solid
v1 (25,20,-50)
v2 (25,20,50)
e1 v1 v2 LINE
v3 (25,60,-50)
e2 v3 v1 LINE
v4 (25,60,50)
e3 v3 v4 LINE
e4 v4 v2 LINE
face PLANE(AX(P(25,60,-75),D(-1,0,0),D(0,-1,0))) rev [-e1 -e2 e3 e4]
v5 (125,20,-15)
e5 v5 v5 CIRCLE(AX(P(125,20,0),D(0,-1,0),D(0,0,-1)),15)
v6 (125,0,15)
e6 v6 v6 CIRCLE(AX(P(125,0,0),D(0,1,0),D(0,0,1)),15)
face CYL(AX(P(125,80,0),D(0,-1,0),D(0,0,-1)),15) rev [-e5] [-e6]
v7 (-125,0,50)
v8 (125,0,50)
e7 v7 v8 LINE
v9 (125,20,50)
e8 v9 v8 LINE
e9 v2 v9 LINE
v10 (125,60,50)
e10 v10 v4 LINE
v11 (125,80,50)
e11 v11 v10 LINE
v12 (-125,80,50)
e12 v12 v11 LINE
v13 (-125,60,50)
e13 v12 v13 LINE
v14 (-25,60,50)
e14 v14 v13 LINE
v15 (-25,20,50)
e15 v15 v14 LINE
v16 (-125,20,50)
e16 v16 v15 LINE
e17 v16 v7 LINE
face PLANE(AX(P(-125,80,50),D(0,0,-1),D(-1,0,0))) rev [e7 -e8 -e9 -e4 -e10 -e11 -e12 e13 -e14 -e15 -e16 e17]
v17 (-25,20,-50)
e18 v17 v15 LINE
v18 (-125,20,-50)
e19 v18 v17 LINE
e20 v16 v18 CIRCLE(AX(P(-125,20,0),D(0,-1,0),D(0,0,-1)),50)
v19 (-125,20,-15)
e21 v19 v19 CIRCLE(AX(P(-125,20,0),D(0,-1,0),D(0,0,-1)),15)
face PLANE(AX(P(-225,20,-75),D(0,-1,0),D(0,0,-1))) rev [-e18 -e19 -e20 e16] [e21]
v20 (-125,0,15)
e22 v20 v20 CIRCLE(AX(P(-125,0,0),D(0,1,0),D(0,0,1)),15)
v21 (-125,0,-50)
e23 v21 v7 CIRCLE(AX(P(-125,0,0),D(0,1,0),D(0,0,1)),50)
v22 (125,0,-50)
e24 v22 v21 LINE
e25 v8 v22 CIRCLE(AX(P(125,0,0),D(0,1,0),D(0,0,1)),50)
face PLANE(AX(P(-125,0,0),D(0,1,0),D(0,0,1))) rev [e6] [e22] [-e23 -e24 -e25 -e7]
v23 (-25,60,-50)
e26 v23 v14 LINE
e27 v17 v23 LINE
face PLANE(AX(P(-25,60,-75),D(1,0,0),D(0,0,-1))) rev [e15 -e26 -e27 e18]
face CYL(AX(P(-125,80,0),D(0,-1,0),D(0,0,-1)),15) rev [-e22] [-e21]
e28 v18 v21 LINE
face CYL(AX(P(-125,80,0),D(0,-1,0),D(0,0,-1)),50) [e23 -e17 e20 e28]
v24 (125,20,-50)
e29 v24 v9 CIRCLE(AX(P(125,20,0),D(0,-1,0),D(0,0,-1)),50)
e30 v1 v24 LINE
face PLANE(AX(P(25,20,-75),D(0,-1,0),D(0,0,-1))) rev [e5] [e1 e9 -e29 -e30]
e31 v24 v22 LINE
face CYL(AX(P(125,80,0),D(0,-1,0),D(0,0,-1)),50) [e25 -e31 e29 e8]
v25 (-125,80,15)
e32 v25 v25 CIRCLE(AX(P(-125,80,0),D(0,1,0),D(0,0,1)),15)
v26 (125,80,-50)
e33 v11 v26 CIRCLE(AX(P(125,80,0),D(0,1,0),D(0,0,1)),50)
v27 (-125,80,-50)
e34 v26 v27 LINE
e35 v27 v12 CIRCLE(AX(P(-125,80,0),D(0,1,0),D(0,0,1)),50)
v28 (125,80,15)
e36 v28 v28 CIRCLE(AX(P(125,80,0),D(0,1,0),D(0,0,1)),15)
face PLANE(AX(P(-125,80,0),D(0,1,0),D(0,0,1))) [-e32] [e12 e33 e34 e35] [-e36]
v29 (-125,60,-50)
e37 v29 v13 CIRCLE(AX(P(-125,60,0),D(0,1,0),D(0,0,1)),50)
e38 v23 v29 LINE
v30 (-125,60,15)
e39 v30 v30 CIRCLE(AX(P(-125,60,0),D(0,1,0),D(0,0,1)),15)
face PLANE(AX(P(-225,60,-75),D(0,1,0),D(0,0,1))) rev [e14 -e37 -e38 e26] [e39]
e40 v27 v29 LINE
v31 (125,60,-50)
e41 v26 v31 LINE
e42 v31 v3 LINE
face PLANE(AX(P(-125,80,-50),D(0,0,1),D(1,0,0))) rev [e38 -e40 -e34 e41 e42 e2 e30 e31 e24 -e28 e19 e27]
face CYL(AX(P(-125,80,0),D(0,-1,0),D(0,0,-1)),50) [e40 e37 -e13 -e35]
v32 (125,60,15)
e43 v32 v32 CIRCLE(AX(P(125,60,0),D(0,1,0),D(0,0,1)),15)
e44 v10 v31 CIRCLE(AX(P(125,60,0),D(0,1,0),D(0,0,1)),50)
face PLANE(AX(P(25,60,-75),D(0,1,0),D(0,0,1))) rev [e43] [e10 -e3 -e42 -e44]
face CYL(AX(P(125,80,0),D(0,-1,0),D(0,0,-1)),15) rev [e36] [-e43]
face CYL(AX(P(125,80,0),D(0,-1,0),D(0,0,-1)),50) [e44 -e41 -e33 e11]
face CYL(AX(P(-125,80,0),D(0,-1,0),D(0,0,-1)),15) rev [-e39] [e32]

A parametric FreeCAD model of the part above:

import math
import FreeCAD as App
import Part
import Sketcher

V = App.Vector

doc = App.newDocument("Part")
params = doc.addObject("Spreadsheet::Sheet", "Params")
for row, (alias, value) in enumerate([
    ("sketch1_diameter", "30 mm"),
    ("sketch1_radius", "50 mm"),
    ("sketch1_width", "250 mm"),
    ("pad1_length", "80 mm"),
    ("sketch2_width", "200 mm"),
    ("sketch2_height", "40 mm"),
    ("pocket1_length", "125 mm"),
], start=1):
    params.set(f"A{row}", alias)
    params.set(f"B{row}", "=" + value)
    params.setAlias(f"B{row}", alias)

body = doc.addObject("PartDesign::Body", "Body")

sketch1 = body.newObject("Sketcher::SketchObject", "Sketch")
sketch1.AttachmentSupport = (doc.getObject("XZ_Plane"), [""])
sketch1.MapMode = "FlatFace"
sketch1.addGeometry([
    Part.LineSegment(V(125, -50, 0), V(-125, -50, 0)),
    Part.ArcOfCircle(Part.Circle(V(-125, 0, 0), V(0, 0, 1), 50), math.radians(90), math.radians(270)),
    Part.LineSegment(V(-125, 50, 0), V(125, 50, 0)),
    Part.ArcOfCircle(Part.Circle(V(125, 0, 0), V(0, 0, 1), 50), math.radians(-90), math.radians(90)),
    Part.Circle(V(125, 0, 0), V(0, 0, 1), 15),
    Part.Circle(V(-125, 0, 0), V(0, 0, 1), 15),
], False)
sketch1.addConstraint([
    Sketcher.Constraint("Tangent", 0, 2, 1, 2),
    Sketcher.Constraint("Tangent", 1, 1, 2, 1),
    Sketcher.Constraint("Tangent", 2, 2, 3, 2),
    Sketcher.Constraint("Tangent", 3, 1, 0, 1),
    Sketcher.Constraint("Horizontal", 0),
    Sketcher.Constraint("Horizontal", 2),
    Sketcher.Constraint("Coincident", 4, 3, 3, 3),
    Sketcher.Constraint("Coincident", 5, 3, 1, 3),
    Sketcher.Constraint("Equal", 4, 5),
    Sketcher.Constraint("Symmetric", 1, 3, 3, 3, -1, 1),
    Sketcher.Constraint("Diameter", 4, 30.0),
    Sketcher.Constraint("Radius", 1, 50.0),
    Sketcher.Constraint("DistanceX", 0, 2, 0, 1, 250.0),
])
sketch1.setExpression("Constraints[10]", "Params.sketch1_diameter")
sketch1.setExpression("Constraints[11]", "Params.sketch1_radius")
sketch1.setExpression("Constraints[12]", "Params.sketch1_width")
pad1 = body.newObject("PartDesign::Pad", "Pad")
pad1.Profile = sketch1
pad1.setExpression("Length", "Params.pad1_length")
pad1.Reversed = True

sketch2 = body.newObject("Sketcher::SketchObject", "Sketch001")
sketch2.AttachmentSupport = (doc.getObject("XY_Plane"), [""])
sketch2.MapMode = "FlatFace"
sketch2.AttachmentOffset = App.Placement(V(0, 0, 50), App.Rotation())
sketch2.addGeometry([
    Part.LineSegment(V(-225, 60, 0), V(-225, 20, 0)),
    Part.LineSegment(V(-225, 20, 0), V(-25, 20, 0)),
    Part.LineSegment(V(-25, 20, 0), V(-25, 60, 0)),
    Part.LineSegment(V(-25, 60, 0), V(-225, 60, 0)),
    Part.LineSegment(V(25, 60, 0), V(25, 20, 0)),
    Part.LineSegment(V(25, 20, 0), V(225, 20, 0)),
    Part.LineSegment(V(225, 20, 0), V(225, 60, 0)),
    Part.LineSegment(V(225, 60, 0), V(25, 60, 0)),
], False)
sketch2.addConstraint([
    Sketcher.Constraint("Coincident", 0, 2, 1, 1),
    Sketcher.Constraint("Coincident", 1, 2, 2, 1),
    Sketcher.Constraint("Coincident", 2, 2, 3, 1),
    Sketcher.Constraint("Coincident", 3, 2, 0, 1),
    Sketcher.Constraint("Coincident", 4, 2, 5, 1),
    Sketcher.Constraint("Coincident", 5, 2, 6, 1),
    Sketcher.Constraint("Coincident", 6, 2, 7, 1),
    Sketcher.Constraint("Coincident", 7, 2, 4, 1),
    Sketcher.Constraint("Vertical", 0),
    Sketcher.Constraint("Horizontal", 1),
    Sketcher.Constraint("Vertical", 2),
    Sketcher.Constraint("Horizontal", 3),
    Sketcher.Constraint("Vertical", 4),
    Sketcher.Constraint("Horizontal", 5),
    Sketcher.Constraint("Vertical", 6),
    Sketcher.Constraint("Horizontal", 7),
    Sketcher.Constraint("Symmetric", 1, 2, 4, 2, -2),
    Sketcher.Constraint("Symmetric", 3, 2, 6, 2, -2),
    Sketcher.Constraint("DistanceX", 1, 1, 1, 2, 200.0),
    Sketcher.Constraint("DistanceY", 0, 2, 0, 1, 40.0),
    Sketcher.Constraint("DistanceX", 0, 2, -1, 1, 225.0),
    Sketcher.Constraint("DistanceY", -1, 1, 0, 2, 20.0),
])
sketch2.setExpression("Constraints[18]", "Params.sketch2_width")
sketch2.setExpression("Constraints[19]", "Params.sketch2_height")
pocket1 = body.newObject("PartDesign::Pocket", "Pocket")
pocket1.Profile = sketch2
pocket1.setExpression("Length", "Params.pocket1_length")

doc.recompute()
